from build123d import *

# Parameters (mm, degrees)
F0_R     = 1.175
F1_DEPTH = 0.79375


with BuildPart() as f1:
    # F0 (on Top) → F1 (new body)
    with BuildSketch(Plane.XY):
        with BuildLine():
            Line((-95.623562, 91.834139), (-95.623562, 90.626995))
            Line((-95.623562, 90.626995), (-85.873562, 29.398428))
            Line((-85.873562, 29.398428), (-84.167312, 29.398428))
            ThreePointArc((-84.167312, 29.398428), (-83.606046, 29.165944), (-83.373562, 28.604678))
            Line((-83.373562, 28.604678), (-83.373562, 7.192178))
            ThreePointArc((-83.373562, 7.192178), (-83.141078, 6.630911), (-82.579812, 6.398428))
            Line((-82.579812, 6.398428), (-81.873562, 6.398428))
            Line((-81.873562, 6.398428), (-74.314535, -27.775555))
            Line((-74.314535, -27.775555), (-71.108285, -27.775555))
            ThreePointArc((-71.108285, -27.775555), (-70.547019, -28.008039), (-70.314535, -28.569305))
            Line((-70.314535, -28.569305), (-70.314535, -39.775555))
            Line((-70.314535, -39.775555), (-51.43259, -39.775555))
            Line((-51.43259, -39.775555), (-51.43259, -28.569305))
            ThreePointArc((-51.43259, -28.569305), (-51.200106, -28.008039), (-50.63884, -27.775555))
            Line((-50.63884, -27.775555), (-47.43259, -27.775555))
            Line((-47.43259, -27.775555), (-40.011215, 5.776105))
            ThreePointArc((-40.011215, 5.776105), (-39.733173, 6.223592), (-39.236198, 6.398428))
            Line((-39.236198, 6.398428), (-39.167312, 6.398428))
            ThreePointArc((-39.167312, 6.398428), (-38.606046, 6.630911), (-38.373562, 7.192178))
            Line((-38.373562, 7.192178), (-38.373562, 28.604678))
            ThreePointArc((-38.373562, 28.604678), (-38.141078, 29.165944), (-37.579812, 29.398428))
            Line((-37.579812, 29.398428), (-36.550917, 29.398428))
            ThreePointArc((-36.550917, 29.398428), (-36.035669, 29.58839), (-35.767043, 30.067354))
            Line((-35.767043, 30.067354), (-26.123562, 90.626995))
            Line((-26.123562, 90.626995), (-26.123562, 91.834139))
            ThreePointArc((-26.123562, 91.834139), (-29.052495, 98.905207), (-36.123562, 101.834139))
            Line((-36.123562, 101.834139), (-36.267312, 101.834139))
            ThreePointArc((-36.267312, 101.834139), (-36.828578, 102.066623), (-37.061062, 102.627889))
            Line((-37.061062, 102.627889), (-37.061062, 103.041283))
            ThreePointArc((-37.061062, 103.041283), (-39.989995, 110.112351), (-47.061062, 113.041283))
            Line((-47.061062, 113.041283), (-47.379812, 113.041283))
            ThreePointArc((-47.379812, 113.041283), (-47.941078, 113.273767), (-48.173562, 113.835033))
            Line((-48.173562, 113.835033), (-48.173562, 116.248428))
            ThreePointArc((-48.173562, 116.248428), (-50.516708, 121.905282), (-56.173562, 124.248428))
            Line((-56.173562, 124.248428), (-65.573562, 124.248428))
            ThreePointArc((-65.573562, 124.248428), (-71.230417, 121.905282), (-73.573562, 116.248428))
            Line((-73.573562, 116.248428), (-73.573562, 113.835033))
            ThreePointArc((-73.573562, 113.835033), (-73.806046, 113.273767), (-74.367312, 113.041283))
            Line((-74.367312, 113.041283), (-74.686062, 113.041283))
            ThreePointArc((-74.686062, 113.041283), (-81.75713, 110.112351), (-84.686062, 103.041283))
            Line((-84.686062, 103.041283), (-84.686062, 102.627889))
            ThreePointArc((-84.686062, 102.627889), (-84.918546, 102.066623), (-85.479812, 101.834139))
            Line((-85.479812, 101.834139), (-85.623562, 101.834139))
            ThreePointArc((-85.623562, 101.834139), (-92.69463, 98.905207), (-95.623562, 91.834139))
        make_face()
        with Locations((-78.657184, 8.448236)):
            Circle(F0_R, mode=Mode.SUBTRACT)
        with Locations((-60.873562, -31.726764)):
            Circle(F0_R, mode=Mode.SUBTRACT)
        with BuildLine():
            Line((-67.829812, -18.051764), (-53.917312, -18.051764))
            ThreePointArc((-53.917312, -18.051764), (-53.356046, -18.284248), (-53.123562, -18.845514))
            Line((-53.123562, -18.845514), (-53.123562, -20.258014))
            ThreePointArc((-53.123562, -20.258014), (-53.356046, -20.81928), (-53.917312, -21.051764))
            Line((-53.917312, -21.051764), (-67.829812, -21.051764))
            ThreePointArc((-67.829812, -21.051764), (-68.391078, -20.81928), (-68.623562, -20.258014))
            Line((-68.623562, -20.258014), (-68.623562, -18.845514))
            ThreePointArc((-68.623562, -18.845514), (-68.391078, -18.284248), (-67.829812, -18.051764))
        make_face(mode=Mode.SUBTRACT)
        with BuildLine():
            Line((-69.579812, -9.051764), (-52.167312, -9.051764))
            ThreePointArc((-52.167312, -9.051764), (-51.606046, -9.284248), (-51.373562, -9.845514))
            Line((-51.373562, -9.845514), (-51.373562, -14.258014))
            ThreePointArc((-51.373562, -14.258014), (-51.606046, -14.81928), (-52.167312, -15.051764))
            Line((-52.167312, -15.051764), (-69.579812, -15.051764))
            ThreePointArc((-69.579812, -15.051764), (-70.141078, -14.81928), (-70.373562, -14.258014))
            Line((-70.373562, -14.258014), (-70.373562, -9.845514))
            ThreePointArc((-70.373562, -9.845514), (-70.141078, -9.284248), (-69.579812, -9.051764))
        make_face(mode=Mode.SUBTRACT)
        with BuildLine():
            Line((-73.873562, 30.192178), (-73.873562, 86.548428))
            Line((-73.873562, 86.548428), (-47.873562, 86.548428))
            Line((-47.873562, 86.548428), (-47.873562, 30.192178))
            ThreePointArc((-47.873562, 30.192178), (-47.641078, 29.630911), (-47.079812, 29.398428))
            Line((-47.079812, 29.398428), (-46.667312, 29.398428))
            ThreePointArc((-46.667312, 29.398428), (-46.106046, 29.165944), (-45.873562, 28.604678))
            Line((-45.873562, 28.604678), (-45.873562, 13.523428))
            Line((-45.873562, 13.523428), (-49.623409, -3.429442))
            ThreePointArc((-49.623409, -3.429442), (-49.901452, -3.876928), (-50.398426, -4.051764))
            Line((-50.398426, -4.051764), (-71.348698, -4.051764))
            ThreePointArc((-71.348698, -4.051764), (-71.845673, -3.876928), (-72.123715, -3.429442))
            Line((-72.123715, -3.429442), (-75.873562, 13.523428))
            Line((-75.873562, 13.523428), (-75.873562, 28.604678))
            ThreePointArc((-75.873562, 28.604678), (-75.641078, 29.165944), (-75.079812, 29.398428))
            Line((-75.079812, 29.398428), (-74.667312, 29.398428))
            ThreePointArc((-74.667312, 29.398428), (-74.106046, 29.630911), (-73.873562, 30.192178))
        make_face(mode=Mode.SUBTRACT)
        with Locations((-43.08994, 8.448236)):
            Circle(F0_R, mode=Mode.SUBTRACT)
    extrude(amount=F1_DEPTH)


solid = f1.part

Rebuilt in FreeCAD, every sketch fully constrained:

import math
import FreeCAD as App
import Part
import Sketcher

V = App.Vector
Q = App.Units.Quantity

doc = App.newDocument("Part")
body = doc.addObject("PartDesign::Body", "Body")

# Sketch on XY plane
sketch1 = body.newObject("Sketcher::SketchObject", "Sketch")
sketch1.AttachmentSupport = (doc.getObject("XY_Plane"), [""])
sketch1.MapMode = "FlatFace"
sketch1.addGeometry(Part.LineSegment(V(-95.623562, 91.834139, 0), V(-95.623562, 90.626995, 0)), False)
sketch1.addGeometry(Part.LineSegment(V(-95.623562, 90.626995, 0), V(-85.873562, 29.398428, 0)), False)
sketch1.addGeometry(Part.LineSegment(V(-85.873562, 29.398428, 0), V(-84.167312, 29.398428, 0)), False)
sketch1.addGeometry(Part.ArcOfCircle(Part.Circle(V(-84.167312, 28.604678, 0), V(0, 0, 1), 0.79375), math.radians(0.000002), math.radians(89.999998)), False)
sketch1.addGeometry(Part.LineSegment(V(-83.373562, 28.604678, 0), V(-83.373562, 7.192178, 0)), False)
sketch1.addGeometry(Part.ArcOfCircle(Part.Circle(V(-82.579814, 7.192176, 0), V(0, 0, 1), 0.793748), math.radians(179.999879), math.radians(270.000121)), False)
sketch1.addGeometry(Part.LineSegment(V(-82.579812, 6.398428, 0), V(-81.873562, 6.398428, 0)), False)
sketch1.addGeometry(Part.LineSegment(V(-81.873562, 6.398428, 0), V(-74.314535, -27.775555, 0)), False)
sketch1.addGeometry(Part.LineSegment(V(-74.314535, -27.775555, 0), V(-71.108285, -27.775555, 0)), False)
sketch1.addGeometry(Part.ArcOfCircle(Part.Circle(V(-71.108285, -28.569305, 0), V(0, 0, 1), 0.79375), math.radians(0.000002), math.radians(89.999998)), False)
sketch1.addGeometry(Part.LineSegment(V(-70.314535, -28.569305, 0), V(-70.314535, -39.775555, 0)), False)
sketch1.addGeometry(Part.LineSegment(V(-70.314535, -39.775555, 0), V(-51.43259, -39.775555, 0)), False)
sketch1.addGeometry(Part.LineSegment(V(-51.43259, -39.775555, 0), V(-51.43259, -28.569305, 0)), False)
sketch1.addGeometry(Part.ArcOfCircle(Part.Circle(V(-50.63884, -28.569305, 0), V(0, 0, 1), 0.79375), math.radians(90.000002), math.radians(179.999998)), False)
sketch1.addGeometry(Part.LineSegment(V(-50.63884, -27.775555, 0), V(-47.43259, -27.775555, 0)), False)
sketch1.addGeometry(Part.LineSegment(V(-47.43259, -27.775555, 0), V(-40.011215, 5.776105, 0)), False)
sketch1.addGeometry(Part.ArcOfCircle(Part.Circle(V(-39.236198, 5.604678, 0), V(0, 0, 1), 0.79375), math.radians(90.00003), math.radians(167.527492)), False)
sketch1.addGeometry(Part.LineSegment(V(-39.236198, 6.398428, 0), V(-39.167312, 6.398428, 0)), False)
sketch1.addGeometry(Part.ArcOfCircle(Part.Circle(V(-39.16731, 7.192176, 0), V(0, 0, 1), 0.793748), math.radians(-90.000121), math.radians(0.000121)), False)
sketch1.addGeometry(Part.LineSegment(V(-38.373562, 7.192178, 0), V(-38.373562, 28.604678, 0)), False)
sketch1.addGeometry(Part.ArcOfCircle(Part.Circle(V(-37.579812, 28.604678, 0), V(0, 0, 1), 0.79375), math.radians(90.000002), math.radians(179.999998)), False)
sketch1.addGeometry(Part.LineSegment(V(-37.579812, 29.398428, 0), V(-36.550917, 29.398428, 0)), False)
sketch1.addGeometry(Part.ArcOfCircle(Part.Circle(V(-36.550915, 30.192176, 0), V(0, 0, 1), 0.793748), math.radians(-90.000157), math.radians(-9.047673)), False)
sketch1.addGeometry(Part.LineSegment(V(-35.767043, 30.067354, 0), V(-26.123562, 90.626995, 0)), False)
sketch1.addGeometry(Part.LineSegment(V(-26.123562, 90.626995, 0), V(-26.123562, 91.834139, 0)), False)
sketch1.addGeometry(Part.ArcOfCircle(Part.Circle(V(-36.123563, 91.834138, 0), V(0, 0, 1), 10.000001), math.radians(0.000006), math.radians(89.999994)), False)
sketch1.addGeometry(Part.LineSegment(V(-36.123562, 101.834139, 0), V(-36.267312, 101.834139, 0)), False)
sketch1.addGeometry(Part.ArcOfCircle(Part.Circle(V(-36.267312, 102.627889, 0), V(0, 0, 1), 0.79375), math.radians(-179.999998), math.radians(-90.000002)), False)
sketch1.addGeometry(Part.LineSegment(V(-37.061062, 102.627889, 0), V(-37.061062, 103.041283, 0)), False)
sketch1.addGeometry(Part.ArcOfCircle(Part.Circle(V(-47.061063, 103.041282, 0), V(0, 0, 1), 10.000001), math.radians(0.000006), math.radians(89.999994)), False)
sketch1.addGeometry(Part.LineSegment(V(-47.061062, 113.041283, 0), V(-47.379812, 113.041283, 0)), False)
sketch1.addGeometry(Part.ArcOfCircle(Part.Circle(V(-47.379812, 113.835033, 0), V(0, 0, 1), 0.79375), math.radians(-179.999998), math.radians(-90.000002)), False)
sketch1.addGeometry(Part.LineSegment(V(-48.173562, 113.835033, 0), V(-48.173562, 116.248428, 0)), False)
sketch1.addGeometry(Part.ArcOfCircle(Part.Circle(V(-56.173563, 116.248427, 0), V(0, 0, 1), 8.000001), math.radians(0.000006), math.radians(89.999994)), False)
sketch1.addGeometry(Part.LineSegment(V(-56.173562, 124.248428, 0), V(-65.573562, 124.248428, 0)), False)
sketch1.addGeometry(Part.ArcOfCircle(Part.Circle(V(-65.573563, 116.248429, 0), V(0, 0, 1), 7.999999), math.radians(89.999994), math.radians(180.000006)), False)
sketch1.addGeometry(Part.LineSegment(V(-73.573562, 116.248428, 0), V(-73.573562, 113.835033, 0)), False)
sketch1.addGeometry(Part.ArcOfCircle(Part.Circle(V(-74.367312, 113.835033, 0), V(0, 0, 1), 0.79375), math.radians(-89.999998), math.radians(-0.000002)), False)
sketch1.addGeometry(Part.LineSegment(V(-74.367312, 113.041283, 0), V(-74.686062, 113.041283, 0)), False)
sketch1.addGeometry(Part.ArcOfCircle(Part.Circle(V(-74.686063, 103.041284, 0), V(0, 0, 1), 9.999999), math.radians(89.999996), math.radians(180.000004)), False)
sketch1.addGeometry(Part.LineSegment(V(-84.686062, 103.041283, 0), V(-84.686062, 102.627889, 0)), False)
sketch1.addGeometry(Part.ArcOfCircle(Part.Circle(V(-85.479812, 102.627889, 0), V(0, 0, 1), 0.79375), math.radians(-89.999998), math.radians(-0.000002)), False)
sketch1.addGeometry(Part.LineSegment(V(-85.479812, 101.834139, 0), V(-85.623562, 101.834139, 0)), False)
sketch1.addGeometry(Part.ArcOfCircle(Part.Circle(V(-85.623563, 91.83414, 0), V(0, 0, 1), 9.999999), math.radians(89.999996), math.radians(180.000004)), False)
sketch1.addGeometry(Part.ArcOfCircle(Part.Circle(V(-67.829812, -18.845514, 0), V(0, 0, 1), 0.79375), math.radians(90.000002), math.radians(179.999998)), False)
sketch1.addGeometry(Part.LineSegment(V(-67.829812, -18.051764, 0), V(-53.917312, -18.051764, 0)), False)
sketch1.addGeometry(Part.ArcOfCircle(Part.Circle(V(-53.917312, -18.845514, 0), V(0, 0, 1), 0.79375), math.radians(0.000002), math.radians(89.999998)), False)
sketch1.addGeometry(Part.LineSegment(V(-53.123562, -18.845514, 0), V(-53.123562, -20.258014, 0)), False)
sketch1.addGeometry(Part.ArcOfCircle(Part.Circle(V(-53.917312, -20.258014, 0), V(0, 0, 1), 0.79375), math.radians(-89.999998), math.radians(-0.000002)), False)
sketch1.addGeometry(Part.LineSegment(V(-53.917312, -21.051764, 0), V(-67.829812, -21.051764, 0)), False)
sketch1.addGeometry(Part.ArcOfCircle(Part.Circle(V(-67.829812, -20.258014, 0), V(0, 0, 1), 0.79375), math.radians(-179.999998), math.radians(-90.000002)), False)
sketch1.addGeometry(Part.LineSegment(V(-68.623562, -20.258014, 0), V(-68.623562, -18.845514, 0)), False)
sketch1.addGeometry(Part.ArcOfCircle(Part.Circle(V(-69.579812, -9.845514, 0), V(0, 0, 1), 0.79375), math.radians(90.000002), math.radians(179.999998)), False)
sketch1.addGeometry(Part.LineSegment(V(-69.579812, -9.051764, 0), V(-52.167312, -9.051764, 0)), False)
sketch1.addGeometry(Part.ArcOfCircle(Part.Circle(V(-52.167312, -9.845514, 0), V(0, 0, 1), 0.79375), math.radians(0.000002), math.radians(89.999998)), False)
sketch1.addGeometry(Part.LineSegment(V(-51.373562, -9.845514, 0), V(-51.373562, -14.258014, 0)), False)
sketch1.addGeometry(Part.ArcOfCircle(Part.Circle(V(-52.167312, -14.258014, 0), V(0, 0, 1), 0.79375), math.radians(-89.999998), math.radians(-0.000002)), False)
sketch1.addGeometry(Part.LineSegment(V(-52.167312, -15.051764, 0), V(-69.579812, -15.051764, 0)), False)
sketch1.addGeometry(Part.ArcOfCircle(Part.Circle(V(-69.579812, -14.258014, 0), V(0, 0, 1), 0.79375), math.radians(-179.999998), math.radians(-90.000002)), False)
sketch1.addGeometry(Part.LineSegment(V(-70.373562, -14.258014, 0), V(-70.373562, -9.845514, 0)), False)
sketch1.addGeometry(Part.Circle(V(-78.657184, 8.448236, 0), V(0, 0, 1), 1.175), False)
sketch1.addGeometry(Part.Circle(V(-60.873562, -31.726764, 0), V(0, 0, 1), 1.175), False)
sketch1.addGeometry(Part.Circle(V(-43.08994, 8.448236, 0), V(0, 0, 1), 1.175), False)
sketch1.addGeometry(Part.ArcOfCircle(Part.Circle(V(-74.66731, 30.192176, 0), V(0, 0, 1), 0.793748), math.radians(-90.000121), math.radians(0.000121)), False)
sketch1.addGeometry(Part.LineSegment(V(-73.873562, 30.192178, 0), V(-73.873562, 86.548428, 0)), False)
sketch1.addGeometry(Part.LineSegment(V(-73.873562, 86.548428, 0), V(-47.873562, 86.548428, 0)), False)
sketch1.addGeometry(Part.LineSegment(V(-47.873562, 86.548428, 0), V(-47.873562, 30.192178, 0)), False)
sketch1.addGeometry(Part.ArcOfCircle(Part.Circle(V(-47.079814, 30.192176, 0), V(0, 0, 1), 0.793748), math.radians(179.999879), math.radians(270.000121)), False)
sketch1.addGeometry(Part.LineSegment(V(-47.079812, 29.398428, 0), V(-46.667312, 29.398428, 0)), False)
sketch1.addGeometry(Part.ArcOfCircle(Part.Circle(V(-46.667312, 28.604678, 0), V(0, 0, 1), 0.79375), math.radians(0.000002), math.radians(89.999998)), False)
sketch1.addGeometry(Part.LineSegment(V(-45.873562, 28.604678, 0), V(-45.873562, 13.523428, 0)), False)
sketch1.addGeometry(Part.LineSegment(V(-45.873562, 13.523428, 0), V(-49.623409, -3.429442, 0)), False)
sketch1.addGeometry(Part.ArcOfCircle(Part.Circle(V(-50.398428, -3.258011, 0), V(0, 0, 1), 0.793753), math.radians(-89.999829), math.radians(-12.472739)), False)
sketch1.addGeometry(Part.LineSegment(V(-50.398426, -4.051764, 0), V(-71.348698, -4.051764, 0)), False)
sketch1.addGeometry(Part.ArcOfCircle(Part.Circle(V(-71.348697, -3.258013, 0), V(0, 0, 1), 0.793751), math.radians(-167.527389), math.radians(-90.000043)), False)
sketch1.addGeometry(Part.LineSegment(V(-72.123715, -3.429442, 0), V(-75.873562, 13.523428, 0)), False)
sketch1.addGeometry(Part.LineSegment(V(-75.873562, 13.523428, 0), V(-75.873562, 28.604678, 0)), False)
sketch1.addGeometry(Part.ArcOfCircle(Part.Circle(V(-75.079812, 28.604678, 0), V(0, 0, 1), 0.79375), math.radians(90.000002), math.radians(179.999998)), False)
sketch1.addGeometry(Part.LineSegment(V(-75.079812, 29.398428, 0), V(-74.667312, 29.398428, 0)), False)
sketch1.addConstraint(Sketcher.Constraint("Coincident", 0, 2, 1, 1))
sketch1.addConstraint(Sketcher.Constraint("Coincident", 1, 2, 2, 1))
sketch1.addConstraint(Sketcher.Constraint("Coincident", 2, 2, 3, 2))
sketch1.addConstraint(Sketcher.Constraint("Coincident", 3, 1, 4, 1))
sketch1.addConstraint(Sketcher.Constraint("Coincident", 4, 2, 5, 1))
sketch1.addConstraint(Sketcher.Constraint("Coincident", 5, 2, 6, 1))
sketch1.addConstraint(Sketcher.Constraint("Coincident", 6, 2, 7, 1))
sketch1.addConstraint(Sketcher.Constraint("Coincident", 7, 2, 8, 1))
sketch1.addConstraint(Sketcher.Constraint("Coincident", 8, 2, 9, 2))
sketch1.addConstraint(Sketcher.Constraint("Coincident", 9, 1, 10, 1))
sketch1.addConstraint(Sketcher.Constraint("Coincident", 10, 2, 11, 1))
sketch1.addConstraint(Sketcher.Constraint("Coincident", 11, 2, 12, 1))
sketch1.addConstraint(Sketcher.Constraint("Coincident", 12, 2, 13, 2))
sketch1.addConstraint(Sketcher.Constraint("Coincident", 13, 1, 14, 1))
sketch1.addConstraint(Sketcher.Constraint("Coincident", 14, 2, 15, 1))
sketch1.addConstraint(Sketcher.Constraint("Coincident", 15, 2, 16, 2))
sketch1.addConstraint(Sketcher.Constraint("Coincident", 16, 1, 17, 1))
sketch1.addConstraint(Sketcher.Constraint("Coincident", 17, 2, 18, 1))
sketch1.addConstraint(Sketcher.Constraint("Coincident", 18, 2, 19, 1))
sketch1.addConstraint(Sketcher.Constraint("Coincident", 19, 2, 20, 2))
sketch1.addConstraint(Sketcher.Constraint("Coincident", 20, 1, 21, 1))
sketch1.addConstraint(Sketcher.Constraint("Coincident", 21, 2, 22, 1))
sketch1.addConstraint(Sketcher.Constraint("Coincident", 22, 2, 23, 1))
sketch1.addConstraint(Sketcher.Constraint("Coincident", 23, 2, 24, 1))
sketch1.addConstraint(Sketcher.Constraint("Coincident", 24, 2, 25, 1))
sketch1.addConstraint(Sketcher.Constraint("Coincident", 25, 2, 26, 1))
sketch1.addConstraint(Sketcher.Constraint("Coincident", 26, 2, 27, 2))
sketch1.addConstraint(Sketcher.Constraint("Coincident", 27, 1, 28, 1))
sketch1.addConstraint(Sketcher.Constraint("Coincident", 28, 2, 29, 1))
sketch1.addConstraint(Sketcher.Constraint("Coincident", 29, 2, 30, 1))
sketch1.addConstraint(Sketcher.Constraint("Coincident", 30, 2, 31, 2))
sketch1.addConstraint(Sketcher.Constraint("Coincident", 31, 1, 32, 1))
sketch1.addConstraint(Sketcher.Constraint("Coincident", 32, 2, 33, 1))
sketch1.addConstraint(Sketcher.Constraint("Coincident", 33, 2, 34, 1))
sketch1.addConstraint(Sketcher.Constraint("Coincident", 34, 2, 35, 1))
sketch1.addConstraint(Sketcher.Constraint("Coincident", 35, 2, 36, 1))
sketch1.addConstraint(Sketcher.Constraint("Coincident", 36, 2, 37, 2))
sketch1.addConstraint(Sketcher.Constraint("Coincident", 37, 1, 38, 1))
sketch1.addConstraint(Sketcher.Constraint("Coincident", 38, 2, 39, 1))
sketch1.addConstraint(Sketcher.Constraint("Coincident", 39, 2, 40, 1))
sketch1.addConstraint(Sketcher.Constraint("Coincident", 40, 2, 41, 2))
sketch1.addConstraint(Sketcher.Constraint("Coincident", 41, 1, 42, 1))
sketch1.addConstraint(Sketcher.Constraint("Coincident", 42, 2, 43, 1))
sketch1.addConstraint(Sketcher.Constraint("Coincident", 43, 2, 0, 1))
sketch1.addConstraint(Sketcher.Constraint("Coincident", 44, 1, 45, 1))
sketch1.addConstraint(Sketcher.Constraint("Coincident", 45, 2, 46, 2))
sketch1.addConstraint(Sketcher.Constraint("Coincident", 46, 1, 47, 1))
sketch1.addConstraint(Sketcher.Constraint("Coincident", 47, 2, 48, 2))
sketch1.addConstraint(Sketcher.Constraint("Coincident", 48, 1, 49, 1))
sketch1.addConstraint(Sketcher.Constraint("Coincident", 49, 2, 50, 2))
sketch1.addConstraint(Sketcher.Constraint("Coincident", 50, 1, 51, 1))
sketch1.addConstraint(Sketcher.Constraint("Coincident", 51, 2, 44, 2))
sketch1.addConstraint(Sketcher.Constraint("Coincident", 52, 1, 53, 1))
sketch1.addConstraint(Sketcher.Constraint("Coincident", 53, 2, 54, 2))
sketch1.addConstraint(Sketcher.Constraint("Coincident", 54, 1, 55, 1))
sketch1.addConstraint(Sketcher.Constraint("Coincident", 55, 2, 56, 2))
sketch1.addConstraint(Sketcher.Constraint("Coincident", 56, 1, 57, 1))
sketch1.addConstraint(Sketcher.Constraint("Coincident", 57, 2, 58, 2))
sketch1.addConstraint(Sketcher.Constraint("Coincident", 58, 1, 59, 1))
sketch1.addConstraint(Sketcher.Constraint("Coincident", 59, 2, 52, 2))
sketch1.addConstraint(Sketcher.Constraint("Coincident", 63, 2, 64, 1))
sketch1.addConstraint(Sketcher.Constraint("Coincident", 64, 2, 65, 1))
sketch1.addConstraint(Sketcher.Constraint("Coincident", 65, 2, 66, 1))
sketch1.addConstraint(Sketcher.Constraint("Coincident", 66, 2, 67, 1))
sketch1.addConstraint(Sketcher.Constraint("Coincident", 67, 2, 68, 1))
sketch1.addConstraint(Sketcher.Constraint("Coincident", 68, 2, 69, 2))
sketch1.addConstraint(Sketcher.Constraint("Coincident", 69, 1, 70, 1))
sketch1.addConstraint(Sketcher.Constraint("Coincident", 70, 2, 71, 1))
sketch1.addConstraint(Sketcher.Constraint("Coincident", 71, 2, 72, 2))
sketch1.addConstraint(Sketcher.Constraint("Coincident", 72, 1, 73, 1))
sketch1.addConstraint(Sketcher.Constraint("Coincident", 73, 2, 74, 2))
sketch1.addConstraint(Sketcher.Constraint("Coincident", 74, 1, 75, 1))
sketch1.addConstraint(Sketcher.Constraint("Coincident", 75, 2, 76, 1))
sketch1.addConstraint(Sketcher.Constraint("Coincident", 76, 2, 77, 2))
sketch1.addConstraint(Sketcher.Constraint("Coincident", 77, 1, 78, 1))
sketch1.addConstraint(Sketcher.Constraint("Coincident", 78, 2, 63, 1))
sketch1.addConstraint(Sketcher.Constraint("Vertical", 0))
sketch1.addConstraint(Sketcher.Constraint("Horizontal", 2))
sketch1.addConstraint(Sketcher.Constraint("Vertical", 4))
sketch1.addConstraint(Sketcher.Constraint("Horizontal", 6))
sketch1.addConstraint(Sketcher.Constraint("Horizontal", 8))
sketch1.addConstraint(Sketcher.Constraint("Vertical", 10))
sketch1.addConstraint(Sketcher.Constraint("Horizontal", 11))
sketch1.addConstraint(Sketcher.Constraint("Vertical", 12))
sketch1.addConstraint(Sketcher.Constraint("Horizontal", 14))
sketch1.addConstraint(Sketcher.Constraint("Horizontal", 17))
sketch1.addConstraint(Sketcher.Constraint("Vertical", 19))
sketch1.addConstraint(Sketcher.Constraint("Horizontal", 21))
sketch1.addConstraint(Sketcher.Constraint("Vertical", 24))
sketch1.addConstraint(Sketcher.Constraint("Horizontal", 26))
sketch1.addConstraint(Sketcher.Constraint("Vertical", 28))
sketch1.addConstraint(Sketcher.Constraint("Horizontal", 30))
sketch1.addConstraint(Sketcher.Constraint("Vertical", 32))
sketch1.addConstraint(Sketcher.Constraint("Horizontal", 34))
sketch1.addConstraint(Sketcher.Constraint("Vertical", 36))
sketch1.addConstraint(Sketcher.Constraint("Horizontal", 38))
sketch1.addConstraint(Sketcher.Constraint("Vertical", 40))
sketch1.addConstraint(Sketcher.Constraint("Horizontal", 42))
sketch1.addConstraint(Sketcher.Constraint("Horizontal", 45))
sketch1.addConstraint(Sketcher.Constraint("Vertical", 47))
sketch1.addConstraint(Sketcher.Constraint("Horizontal", 49))
sketch1.addConstraint(Sketcher.Constraint("Vertical", 51))
sketch1.addConstraint(Sketcher.Constraint("Horizontal", 53))
sketch1.addConstraint(Sketcher.Constraint("Vertical", 55))
sketch1.addConstraint(Sketcher.Constraint("Horizontal", 57))
sketch1.addConstraint(Sketcher.Constraint("Vertical", 59))
sketch1.addConstraint(Sketcher.Constraint("Vertical", 64))
sketch1.addConstraint(Sketcher.Constraint("Horizontal", 65))
sketch1.addConstraint(Sketcher.Constraint("Vertical", 66))
sketch1.addConstraint(Sketcher.Constraint("Horizontal", 68))
sketch1.addConstraint(Sketcher.Constraint("Vertical", 70))
sketch1.addConstraint(Sketcher.Constraint("Horizontal", 73))
sketch1.addConstraint(Sketcher.Constraint("Vertical", 76))
sketch1.addConstraint(Sketcher.Constraint("Horizontal", 78))
sketch1.addConstraint(Sketcher.Constraint("Radius", 25, Q("10.000001 mm")))
sketch1.addConstraint(Sketcher.Constraint("Radius", 29, Q("10.000001 mm")))
sketch1.addConstraint(Sketcher.Constraint("Radius", 33, Q("8.000001 mm")))
sketch1.addConstraint(Sketcher.Constraint("Radius", 35, Q("7.999999 mm")))
sketch1.addConstraint(Sketcher.Constraint("Radius", 39, Q("9.999999 mm")))
sketch1.addConstraint(Sketcher.Constraint("Radius", 43, Q("9.999999 mm")))
sketch1.addConstraint(Sketcher.Constraint("Diameter", 60, Q("2.35 mm")))
sketch1.addConstraint(Sketcher.Constraint("Diameter", 61, Q("2.35 mm")))
sketch1.addConstraint(Sketcher.Constraint("Diameter", 62, Q("2.35 mm")))
sketch1.addConstraint(Sketcher.Constraint("DistanceX", 65, 1, 65, 2, Q("26 mm")))
sketch1.addConstraint(Sketcher.Constraint("Distance", 1, Q("61.999999 mm")))
sketch1.addConstraint(Sketcher.Constraint("Distance", 7, Q("35 mm")))
sketch1.addConstraint(Sketcher.Constraint("DistanceX", 34, 2, 34, 1, Q("9.4 mm")))
sketch1.addConstraint(Sketcher.Constraint("Radius", 3, Q("0.79375 mm")))
sketch1.addConstraint(Sketcher.Constraint("Radius", 5, Q("0.793748 mm")))
sketch1.addConstraint(Sketcher.Constraint("Radius", 9, Q("0.79375 mm")))
sketch1.addConstraint(Sketcher.Constraint("Radius", 13, Q("0.79375 mm")))
sketch1.addConstraint(Sketcher.Constraint("Radius", 16, Q("0.79375 mm")))
sketch1.addConstraint(Sketcher.Constraint("Radius", 18, Q("0.793748 mm")))
sketch1.addConstraint(Sketcher.Constraint("Radius", 20, Q("0.79375 mm")))
sketch1.addConstraint(Sketcher.Constraint("Radius", 27, Q("0.79375 mm")))
sketch1.addConstraint(Sketcher.Constraint("Radius", 31, Q("0.79375 mm")))
sketch1.addConstraint(Sketcher.Constraint("Radius", 37, Q("0.79375 mm")))
sketch1.addConstraint(Sketcher.Constraint("Radius", 41, Q("0.79375 mm")))
sketch1.addConstraint(Sketcher.Constraint("Radius", 44, Q("0.79375 mm")))
sketch1.addConstraint(Sketcher.Constraint("Radius", 46, Q("0.79375 mm")))
sketch1.addConstraint(Sketcher.Constraint("Radius", 48, Q("0.79375 mm")))
sketch1.addConstraint(Sketcher.Constraint("Radius", 50, Q("0.79375 mm")))
sketch1.addConstraint(Sketcher.Constraint("Radius", 52, Q("0.79375 mm")))
sketch1.addConstraint(Sketcher.Constraint("Radius", 54, Q("0.79375 mm")))
sketch1.addConstraint(Sketcher.Constraint("Radius", 56, Q("0.79375 mm")))
sketch1.addConstraint(Sketcher.Constraint("Radius", 58, Q("0.79375 mm")))
sketch1.addConstraint(Sketcher.Constraint("Radius", 63, Q("0.793748 mm")))
sketch1.addConstraint(Sketcher.Constraint("Radius", 67, Q("0.793748 mm")))
sketch1.addConstraint(Sketcher.Constraint("Radius", 69, Q("0.79375 mm")))
sketch1.addConstraint(Sketcher.Constraint("Radius", 74, Q("0.793751 mm")))
sketch1.addConstraint(Sketcher.Constraint("Radius", 77, Q("0.79375 mm")))
sketch1.addConstraint(Sketcher.Constraint("DistanceX", 45, 1, 45, 2, Q("13.9125 mm")))
sketch1.addConstraint(Sketcher.Constraint("DistanceX", 49, 2, 49, 1, Q("13.9125 mm")))
sketch1.addConstraint(Sketcher.Constraint("DistanceX", 53, 1, 53, 2, Q("17.4125 mm")))
sketch1.addConstraint(Sketcher.Constraint("DistanceX", 57, 2, 57, 1, Q("17.4125 mm")))
sketch1.addConstraint(Sketcher.Constraint("DistanceX", 68, 1, 68, 2, Q("0.4125 mm")))
sketch1.addConstraint(Sketcher.Constraint("DistanceX", 78, 1, 78, 2, Q("0.4125 mm")))
sketch1.addConstraint(Sketcher.Constraint("DistanceY", 4, 2, 4, 1, Q("21.4125 mm")))
sketch1.addConstraint(Sketcher.Constraint("DistanceY", 19, 1, 19, 2, Q("21.4125 mm")))
sketch1.addConstraint(Sketcher.Constraint("DistanceY", 47, 2, 47, 1, Q("1.4125 mm")))
sketch1.addConstraint(Sketcher.Constraint("DistanceY", 51, 1, 51, 2, Q("1.4125 mm")))
sketch1.addConstraint(Sketcher.Constraint("DistanceY", 55, 2, 55, 1, Q("4.4125 mm")))
sketch1.addConstraint(Sketcher.Constraint("DistanceY", 59, 1, 59, 2, Q("4.4125 mm")))
sketch1.addConstraint(Sketcher.Constraint("Radius", 22, Q("0.793748 mm")))
sketch1.addConstraint(Sketcher.Constraint("Radius", 72, Q("0.793753 mm")))
sketch1.addConstraint(Sketcher.Constraint("DistanceX", 2, 1, 2, 2, Q("1.70625 mm")))
sketch1.addConstraint(Sketcher.Constraint("DistanceX", 6, 1, 6, 2, Q("0.70625 mm")))
sketch1.addConstraint(Sketcher.Constraint("DistanceX", 8, 1, 8, 2, Q("3.20625 mm")))
sketch1.addConstraint(Sketcher.Constraint("DistanceX", 14, 1, 14, 2, Q("3.20625 mm")))
sketch1.addConstraint(Sketcher.Constraint("DistanceX", 26, 2, 26, 1, Q("0.14375 mm")))
sketch1.addConstraint(Sketcher.Constraint("DistanceX", 30, 2, 30, 1, Q("0.31875 mm")))
sketch1.addConstraint(Sketcher.Constraint("DistanceX", 38, 2, 38, 1, Q("0.31875 mm")))
sketch1.addConstraint(Sketcher.Constraint("DistanceX", 42, 2, 42, 1, Q("0.14375 mm")))
sketch1.addConstraint(Sketcher.Constraint("DistanceX", 73, 2, 73, 1, Q("20.950272 mm")))
sketch1.addConstraint(Sketcher.Constraint("DistanceY", 10, 2, 10, 1, Q("11.20625 mm")))
sketch1.addConstraint(Sketcher.Constraint("DistanceY", 12, 1, 12, 2, Q("11.20625 mm")))
sketch1.addConstraint(Sketcher.Constraint("DistanceY", 64, 1, 64, 2, Q("56.35625 mm")))
sketch1.addConstraint(Sketcher.Constraint("DistanceY", 66, 2, 66, 1, Q("56.35625 mm")))
sketch1.addConstraint(Sketcher.Constraint("DistanceY", 70, 2, 70, 1, Q("15.08125 mm")))
sketch1.addConstraint(Sketcher.Constraint("DistanceY", 76, 1, 76, 2, Q("15.08125 mm")))
sketch1.addConstraint(Sketcher.Constraint("DistanceX", 16, 1, -1, 1, Q("39.236198 mm")))
sketch1.addConstraint(Sketcher.Constraint("DistanceX", 73, 2, -1, 1, Q("71.348698 mm")))
sketch1.addConstraint(Sketcher.Constraint("DistanceX", 11, 1, 11, 2, Q("18.881945 mm")))
sketch1.addConstraint(Sketcher.Constraint("DistanceX", 17, 1, 17, 2, Q("0.068886 mm")))
sketch1.addConstraint(Sketcher.Constraint("DistanceX", 21, 1, 21, 2, Q("1.028895 mm")))
sketch1.addConstraint(Sketcher.Constraint("DistanceY", 0, 2, 0, 1, Q("1.207144 mm")))
sketch1.addConstraint(Sketcher.Constraint("DistanceY", 24, 1, 24, 2, Q("1.207144 mm")))
sketch1.addConstraint(Sketcher.Constraint("DistanceY", 28, 1, 28, 2, Q("0.413394 mm")))
sketch1.addConstraint(Sketcher.Constraint("DistanceY", 32, 1, 32, 2, Q("2.413395 mm")))
sketch1.addConstraint(Sketcher.Constraint("DistanceY", 36, 2, 36, 1, Q("2.413395 mm")))
sketch1.addConstraint(Sketcher.Constraint("DistanceY", 40, 2, 40, 1, Q("0.413394 mm")))
sketch1.addConstraint(Sketcher.Constraint("DistanceX", 13, 3, -1, 1, Q("50.63884 mm")))
sketch1.addConstraint(Sketcher.Constraint("DistanceX", 18, 3, -1, 1, Q("39.16731 mm")))
sketch1.addConstraint(Sketcher.Constraint("DistanceX", 27, 3, -1, 1, Q("36.267312 mm")))
sketch1.addConstraint(Sketcher.Constraint("DistanceY", -1, 1, 27, 3, Q("102.627889 mm")))
sketch1.addConstraint(Sketcher.Constraint("DistanceY", -1, 1, 29, 3, Q("103.041282 mm")))
sketch1.addConstraint(Sketcher.Constraint("DistanceX", 31, 3, -1, 1, Q("47.379812 mm")))
sketch1.addConstraint(Sketcher.Constraint("DistanceY", -1, 1, 35, 3, Q("116.248429 mm")))
sketch1.addConstraint(Sketcher.Constraint("DistanceY", -1, 1, 41, 3, Q("102.627889 mm")))
sketch1.addConstraint(Sketcher.Constraint("DistanceX", 44, 3, -1, 1, Q("67.829812 mm")))
sketch1.addConstraint(Sketcher.Constraint("DistanceX", 52, 3, -1, 1, Q("69.579812 mm")))
sketch1.addConstraint(Sketcher.Constraint("DistanceX", 62, 3, -1, 1, Q("43.08994 mm")))
sketch1.addConstraint(Sketcher.Constraint("DistanceX", 63, 3, -1, 1, Q("74.66731 mm")))
sketch1.addConstraint(Sketcher.Constraint("DistanceX", 72, 3, -1, 1, Q("50.398428 mm")))
sketch1.addConstraint(Sketcher.Constraint("DistanceY", 72, 3, -1, 1, Q("3.258011 mm")))
sketch1.addConstraint(Sketcher.Constraint("DistanceX", 77, 3, -1, 1, Q("75.079812 mm")))
sketch1.addConstraint(Sketcher.Constraint("DistanceX", 2, 2, -1, 1, Q("84.167312 mm")))
sketch1.addConstraint(Sketcher.Constraint("DistanceY", -1, 1, 3, 1, Q("28.604678 mm")))
sketch1.addConstraint(Sketcher.Constraint("DistanceY", -1, 1, 5, 2, Q("6.398428 mm")))
sketch1.addConstraint(Sketcher.Constraint("DistanceX", 13, 1, -1, 1, Q("50.63884 mm")))
sketch1.addConstraint(Sketcher.Constraint("DistanceY", -1, 1, 18, 2, Q("7.192178 mm")))
sketch1.addConstraint(Sketcher.Constraint("DistanceX", 20, 1, -1, 1, Q("37.579812 mm")))
sketch1.addConstraint(Sketcher.Constraint("DistanceX", 23, 2, -1, 1, Q("26.123562 mm")))
sketch1.addConstraint(Sketcher.Constraint("DistanceY", -1, 1, 24, 2, Q("91.834139 mm")))
sketch1.addConstraint(Sketcher.Constraint("DistanceX", 26, 2, -1, 1, Q("36.267312 mm")))
sketch1.addConstraint(Sketcher.Constraint("DistanceY", -1, 1, 27, 1, Q("102.627889 mm")))
sketch1.addConstraint(Sketcher.Constraint("DistanceY", -1, 1, 32, 2, Q("116.248428 mm")))
sketch1.addConstraint(Sketcher.Constraint("DistanceX", 33, 2, -1, 1, Q("56.173562 mm")))
sketch1.addConstraint(Sketcher.Constraint("DistanceX", 35, 2, -1, 1, Q("73.573562 mm")))
sketch1.addConstraint(Sketcher.Constraint("DistanceY", -1, 1, 35, 2, Q("116.248428 mm")))
sketch1.addConstraint(Sketcher.Constraint("DistanceX", 37, 1, -1, 1, Q("74.367312 mm")))
sketch1.addConstraint(Sketcher.Constraint("DistanceX", 39, 2, -1, 1, Q("84.686062 mm")))
sketch1.addConstraint(Sketcher.Constraint("DistanceY", -1, 1, 40, 2, Q("102.627889 mm")))
sketch1.addConstraint(Sketcher.Constraint("DistanceX", 41, 1, -1, 1, Q("85.479812 mm")))
sketch1.addConstraint(Sketcher.Constraint("DistanceX", 43, 2, -1, 1, Q("95.623562 mm")))
sketch1.addConstraint(Sketcher.Constraint("DistanceY", -1, 1, 43, 2, Q("91.834139 mm")))
sketch1.addConstraint(Sketcher.Constraint("DistanceY", -1, 1, 64, 2, Q("86.548428 mm")))
sketch1.addConstraint(Sketcher.Constraint("DistanceX", 67, 2, -1, 1, Q("47.079812 mm")))
sketch1.addConstraint(Sketcher.Constraint("DistanceY", -1, 1, 67, 2, Q("29.398428 mm")))
sketch1.addConstraint(Sketcher.Constraint("DistanceY", -1, 1, 69, 1, Q("28.604678 mm")))
sketch1.addConstraint(Sketcher.Constraint("DistanceX", 71, 2, -1, 1, Q("49.623409 mm")))
sketch1.addConstraint(Sketcher.Constraint("DistanceY", -1, 1, 76, 2, Q("28.604678 mm")))
sketch1.addConstraint(Sketcher.Constraint("DistanceX", 78, 2, -1, 1, Q("74.667312 mm")))
sketch1.addConstraint(Sketcher.Constraint("Distance", 15, Q("34.362635 mm")))
sketch1.addConstraint(Sketcher.Constraint("Distance", 23, Q("61.322645 mm")))
sketch1.addConstraint(Sketcher.Constraint("Distance", 71, Q("17.362637 mm")))
sketch1.addConstraint(Sketcher.Constraint("Distance", 75, Q("17.362637 mm")))
sketch1.addConstraint(Sketcher.Constraint("DistanceX", 3, 3, -1, 1, Q("84.167312 mm")))
sketch1.addConstraint(Sketcher.Constraint("DistanceY", 9, 3, -1, 1, Q("28.569305 mm")))
sketch1.addConstraint(Sketcher.Constraint("DistanceY", 13, 3, -1, 1, Q("28.569305 mm")))
sketch1.addConstraint(Sketcher.Constraint("DistanceX", 16, 3, -1, 1, Q("39.236198 mm")))
sketch1.addConstraint(Sketcher.Constraint("DistanceY", -1, 1, 16, 3, Q("5.604678 mm")))
sketch1.addConstraint(Sketcher.Constraint("DistanceY", -1, 1, 20, 3, Q("28.604678 mm")))
sketch1.addConstraint(Sketcher.Constraint("DistanceX", 22, 3, -1, 1, Q("36.550915 mm")))
sketch1.addConstraint(Sketcher.Constraint("DistanceY", -1, 1, 37, 3, Q("113.835033 mm")))
sketch1.addConstraint(Sketcher.Constraint("DistanceY", 44, 3, -1, 1, Q("18.845514 mm")))
sketch1.addConstraint(Sketcher.Constraint("DistanceX", 46, 3, -1, 1, Q("53.917312 mm")))
sketch1.addConstraint(Sketcher.Constraint("DistanceY", 48, 3, -1, 1, Q("20.258014 mm")))
sketch1.addConstraint(Sketcher.Constraint("DistanceY", 52, 3, -1, 1, Q("9.845514 mm")))
sketch1.addConstraint(Sketcher.Constraint("DistanceX", 54, 3, -1, 1, Q("52.167312 mm")))
sketch1.addConstraint(Sketcher.Constraint("DistanceY", 56, 3, -1, 1, Q("14.258014 mm")))
sketch1.addConstraint(Sketcher.Constraint("DistanceX", 60, 3, -1, 1, Q("78.657184 mm")))
sketch1.addConstraint(Sketcher.Constraint("DistanceY", -1, 1, 60, 3, Q("8.448236 mm")))
sketch1.addConstraint(Sketcher.Constraint("DistanceX", 61, 3, -1, 1, Q("60.873562 mm")))
sketch1.addConstraint(Sketcher.Constraint("DistanceY", 61, 3, -1, 1, Q("31.726764 mm")))
sketch1.addConstraint(Sketcher.Constraint("DistanceY", -1, 1, 62, 3, Q("8.448236 mm")))
sketch1.addConstraint(Sketcher.Constraint("DistanceY", -1, 1, 63, 3, Q("30.192176 mm")))
sketch1.addConstraint(Sketcher.Constraint("DistanceX", 74, 3, -1, 1, Q("71.348697 mm")))
sketch1.addConstraint(Sketcher.Constraint("DistanceX", 5, 2, -1, 1, Q("82.579812 mm")))
sketch1.addConstraint(Sketcher.Constraint("DistanceY", 9, 1, -1, 1, Q("28.569305 mm")))
sketch1.addConstraint(Sketcher.Constraint("DistanceX", 29, 2, -1, 1, Q("47.061062 mm")))
sketch1.addConstraint(Sketcher.Constraint("DistanceX", 44, 1, -1, 1, Q("67.829812 mm")))
sketch1.addConstraint(Sketcher.Constraint("DistanceY", 46, 1, -1, 1, Q("18.845514 mm")))
sketch1.addConstraint(Sketcher.Constraint("DistanceX", 48, 1, -1, 1, Q("53.917312 mm")))
sketch1.addConstraint(Sketcher.Constraint("DistanceY", 50, 1, -1, 1, Q("20.258014 mm")))
sketch1.addConstraint(Sketcher.Constraint("DistanceX", 52, 1, -1, 1, Q("69.579812 mm")))
sketch1.addConstraint(Sketcher.Constraint("DistanceY", 54, 1, -1, 1, Q("9.845514 mm")))
sketch1.addConstraint(Sketcher.Constraint("DistanceX", 56, 1, -1, 1, Q("52.167312 mm")))
sketch1.addConstraint(Sketcher.Constraint("DistanceY", 58, 1, -1, 1, Q("14.258014 mm")))
pad1 = body.newObject("PartDesign::Pad", "Pad")
pad1.Profile = sketch1
pad1.Length = 0.79375

doc.recompute()
